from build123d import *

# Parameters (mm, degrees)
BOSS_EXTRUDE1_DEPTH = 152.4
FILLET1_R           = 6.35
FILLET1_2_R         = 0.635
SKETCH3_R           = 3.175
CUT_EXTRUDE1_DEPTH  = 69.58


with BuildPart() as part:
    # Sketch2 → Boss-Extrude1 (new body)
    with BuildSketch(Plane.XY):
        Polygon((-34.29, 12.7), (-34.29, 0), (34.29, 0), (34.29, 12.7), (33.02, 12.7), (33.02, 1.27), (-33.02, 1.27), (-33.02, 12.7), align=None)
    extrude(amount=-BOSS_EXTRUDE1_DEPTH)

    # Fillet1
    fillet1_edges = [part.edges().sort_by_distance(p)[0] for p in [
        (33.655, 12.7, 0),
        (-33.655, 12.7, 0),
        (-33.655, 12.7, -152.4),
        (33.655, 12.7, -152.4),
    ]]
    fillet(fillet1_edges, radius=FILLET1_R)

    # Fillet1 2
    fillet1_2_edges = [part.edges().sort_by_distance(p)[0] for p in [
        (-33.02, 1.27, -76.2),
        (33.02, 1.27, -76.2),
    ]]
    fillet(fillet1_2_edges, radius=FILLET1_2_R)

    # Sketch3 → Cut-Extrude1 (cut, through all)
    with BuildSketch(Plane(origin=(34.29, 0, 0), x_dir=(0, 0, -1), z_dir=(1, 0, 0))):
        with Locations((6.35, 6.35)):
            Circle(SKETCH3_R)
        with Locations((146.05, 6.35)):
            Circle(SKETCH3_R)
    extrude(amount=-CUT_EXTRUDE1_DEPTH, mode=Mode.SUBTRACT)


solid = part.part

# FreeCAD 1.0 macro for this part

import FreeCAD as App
import Part
import Sketcher

V = App.Vector
Q = App.Units.Quantity


def edges_at(feature, points):
    """Names of the edges that pass closest to the given points."""
    edges = feature.Shape.Edges
    near = lambda p: min(range(len(edges)), key=lambda i: edges[i].distToShape(Part.Vertex(*p))[0])
    return sorted({f"Edge{near(p) + 1}" for p in points})


def add_polygon(sketch, points):
    """Adds a closed chain of lines whose ends are joined by coincident constraints."""
    first, n = sketch.GeometryCount, len(points)
    for a, b in zip(points, points[1:] + points[:1]):
        sketch.addGeometry(Part.LineSegment(App.Vector(*a, 0), App.Vector(*b, 0)), False)
    for i in range(n):
        sketch.addConstraint(Sketcher.Constraint("Coincident", first + i, 2, first + (i + 1) % n, 1))

doc = App.newDocument("Part")
params = doc.addObject("Spreadsheet::Sheet", "Params")
for row, (alias, value) in enumerate([
    ("sketch1_width", "2.7 in"),
    ("sketch1_width2", "2.6 in"),
    ("sketch1_height", "0.5 in"),
    ("sketch1_height2", "0.45 in"),
    ("pad1_length", "6 in"),
    ("fillet_radius", "0.25 in"),
    ("fillet2_radius", "0.025 in"),
    ("sketch2_diameter", "0.25 in"),
], start=1):
    params.set(f"A{row}", alias)
    params.set(f"B{row}", "=" + value)
    params.setAlias(f"B{row}", alias)

body = doc.addObject("PartDesign::Body", "Body")

sketch1 = doc.addObject("Sketcher::SketchObject", "Sketch")
body.addObject(sketch1)
sketch1.AttachmentSupport = (doc.XY_Plane, [""])
sketch1.MapMode = "FlatFace"
add_polygon(sketch1, [(-34.3, 12.7), (-34.3, 0), (34.3, 0), (34.3, 12.7), (33, 12.7), (33, 1.3), (-33, 1.3), (-33, 12.7)])
sketch1.addConstraint([
    Sketcher.Constraint("Vertical", 0),
    Sketcher.Constraint("Horizontal", 1),
    Sketcher.Constraint("Vertical", 2),
    Sketcher.Constraint("Horizontal", 3),
    Sketcher.Constraint("Vertical", 4),
    Sketcher.Constraint("Horizontal", 5),
    Sketcher.Constraint("Vertical", 6),
    Sketcher.Constraint("Horizontal", 7),
    Sketcher.Constraint("Symmetric", 0, 2, 1, 2, -1, 1),
    Sketcher.Constraint("Symmetric", 3, 2, 6, 2, -2),
    Sketcher.Constraint("DistanceX", 1, 1, 1, 2, Q("2.7 in")),
    Sketcher.Constraint("DistanceX", 5, 2, 5, 1, Q("2.6 in")),
    Sketcher.Constraint("DistanceY", 0, 2, 0, 1, Q("0.5 in")),
    Sketcher.Constraint("DistanceY", 4, 2, 4, 1, Q("0.45 in")),
])
sketch1.setExpression("Constraints[18]", "Params.sketch1_width")
sketch1.setExpression("Constraints[19]", "Params.sketch1_width2")
sketch1.setExpression("Constraints[20]", "Params.sketch1_height")
sketch1.setExpression("Constraints[21]", "Params.sketch1_height2")
pad1 = doc.addObject("PartDesign::Pad", "Pad")
body.addObject(pad1)
pad1.Profile = sketch1
pad1.setExpression("Length", "Params.pad1_length")
pad1.Reversed = True
doc.recompute()

fillet = doc.addObject("PartDesign::Fillet", "Fillet")
body.addObject(fillet)
fillet.Base = (pad1, edges_at(pad1, [
    (33.655, 12.7, 0),
    (-33.655, 12.7, 0),
    (-33.655, 12.7, -152.4),
    (33.655, 12.7, -152.4),
]))
fillet.setExpression("Radius", "Params.fillet_radius")
doc.recompute()

fillet2 = doc.addObject("PartDesign::Fillet", "Fillet001")
body.addObject(fillet2)
fillet2.Base = (fillet, edges_at(fillet, [(-33.02, 1.27, -76.2), (33.02, 1.27, -76.2)]))
fillet2.setExpression("Radius", "Params.fillet2_radius")

sketch2 = doc.addObject("Sketcher::SketchObject", "Sketch001")
body.addObject(sketch2)
sketch2.AttachmentSupport = (doc.YZ_Plane, [""])
sketch2.MapMode = "FlatFace"
sketch2.AttachmentOffset = App.Placement(V(0, 0, 1.35 * 25.4), App.Rotation())
sketch2.addGeometry([
    Part.Circle(V(6.3, -6.3, 0), V(0, 0, 1), 3.2),
    Part.Circle(V(6.3, -146.1, 0), V(0, 0, 1), 3.2),
], False)
sketch2.addConstraint([
    Sketcher.Constraint("Equal", 0, 1),
    Sketcher.Constraint("Vertical", 0, 3, 1, 3),
    Sketcher.Constraint("Diameter", 0, Q("0.25 in")),
    Sketcher.Constraint("DistanceY", 1, 3, 0, 3, Q("5.5 in")),
    Sketcher.Constraint("DistanceX", -1, 1, 0, 3, Q("0.25 in")),
    Sketcher.Constraint("DistanceY", 0, 3, -1, 1, Q("0.25 in")),
])
sketch2.setExpression("Constraints[2]", "Params.sketch2_diameter")
pocket1 = doc.addObject("PartDesign::Pocket", "Pocket")
body.addObject(pocket1)
pocket1.Profile = sketch2
pocket1.Type = "ThroughAll"

doc.recompute()
